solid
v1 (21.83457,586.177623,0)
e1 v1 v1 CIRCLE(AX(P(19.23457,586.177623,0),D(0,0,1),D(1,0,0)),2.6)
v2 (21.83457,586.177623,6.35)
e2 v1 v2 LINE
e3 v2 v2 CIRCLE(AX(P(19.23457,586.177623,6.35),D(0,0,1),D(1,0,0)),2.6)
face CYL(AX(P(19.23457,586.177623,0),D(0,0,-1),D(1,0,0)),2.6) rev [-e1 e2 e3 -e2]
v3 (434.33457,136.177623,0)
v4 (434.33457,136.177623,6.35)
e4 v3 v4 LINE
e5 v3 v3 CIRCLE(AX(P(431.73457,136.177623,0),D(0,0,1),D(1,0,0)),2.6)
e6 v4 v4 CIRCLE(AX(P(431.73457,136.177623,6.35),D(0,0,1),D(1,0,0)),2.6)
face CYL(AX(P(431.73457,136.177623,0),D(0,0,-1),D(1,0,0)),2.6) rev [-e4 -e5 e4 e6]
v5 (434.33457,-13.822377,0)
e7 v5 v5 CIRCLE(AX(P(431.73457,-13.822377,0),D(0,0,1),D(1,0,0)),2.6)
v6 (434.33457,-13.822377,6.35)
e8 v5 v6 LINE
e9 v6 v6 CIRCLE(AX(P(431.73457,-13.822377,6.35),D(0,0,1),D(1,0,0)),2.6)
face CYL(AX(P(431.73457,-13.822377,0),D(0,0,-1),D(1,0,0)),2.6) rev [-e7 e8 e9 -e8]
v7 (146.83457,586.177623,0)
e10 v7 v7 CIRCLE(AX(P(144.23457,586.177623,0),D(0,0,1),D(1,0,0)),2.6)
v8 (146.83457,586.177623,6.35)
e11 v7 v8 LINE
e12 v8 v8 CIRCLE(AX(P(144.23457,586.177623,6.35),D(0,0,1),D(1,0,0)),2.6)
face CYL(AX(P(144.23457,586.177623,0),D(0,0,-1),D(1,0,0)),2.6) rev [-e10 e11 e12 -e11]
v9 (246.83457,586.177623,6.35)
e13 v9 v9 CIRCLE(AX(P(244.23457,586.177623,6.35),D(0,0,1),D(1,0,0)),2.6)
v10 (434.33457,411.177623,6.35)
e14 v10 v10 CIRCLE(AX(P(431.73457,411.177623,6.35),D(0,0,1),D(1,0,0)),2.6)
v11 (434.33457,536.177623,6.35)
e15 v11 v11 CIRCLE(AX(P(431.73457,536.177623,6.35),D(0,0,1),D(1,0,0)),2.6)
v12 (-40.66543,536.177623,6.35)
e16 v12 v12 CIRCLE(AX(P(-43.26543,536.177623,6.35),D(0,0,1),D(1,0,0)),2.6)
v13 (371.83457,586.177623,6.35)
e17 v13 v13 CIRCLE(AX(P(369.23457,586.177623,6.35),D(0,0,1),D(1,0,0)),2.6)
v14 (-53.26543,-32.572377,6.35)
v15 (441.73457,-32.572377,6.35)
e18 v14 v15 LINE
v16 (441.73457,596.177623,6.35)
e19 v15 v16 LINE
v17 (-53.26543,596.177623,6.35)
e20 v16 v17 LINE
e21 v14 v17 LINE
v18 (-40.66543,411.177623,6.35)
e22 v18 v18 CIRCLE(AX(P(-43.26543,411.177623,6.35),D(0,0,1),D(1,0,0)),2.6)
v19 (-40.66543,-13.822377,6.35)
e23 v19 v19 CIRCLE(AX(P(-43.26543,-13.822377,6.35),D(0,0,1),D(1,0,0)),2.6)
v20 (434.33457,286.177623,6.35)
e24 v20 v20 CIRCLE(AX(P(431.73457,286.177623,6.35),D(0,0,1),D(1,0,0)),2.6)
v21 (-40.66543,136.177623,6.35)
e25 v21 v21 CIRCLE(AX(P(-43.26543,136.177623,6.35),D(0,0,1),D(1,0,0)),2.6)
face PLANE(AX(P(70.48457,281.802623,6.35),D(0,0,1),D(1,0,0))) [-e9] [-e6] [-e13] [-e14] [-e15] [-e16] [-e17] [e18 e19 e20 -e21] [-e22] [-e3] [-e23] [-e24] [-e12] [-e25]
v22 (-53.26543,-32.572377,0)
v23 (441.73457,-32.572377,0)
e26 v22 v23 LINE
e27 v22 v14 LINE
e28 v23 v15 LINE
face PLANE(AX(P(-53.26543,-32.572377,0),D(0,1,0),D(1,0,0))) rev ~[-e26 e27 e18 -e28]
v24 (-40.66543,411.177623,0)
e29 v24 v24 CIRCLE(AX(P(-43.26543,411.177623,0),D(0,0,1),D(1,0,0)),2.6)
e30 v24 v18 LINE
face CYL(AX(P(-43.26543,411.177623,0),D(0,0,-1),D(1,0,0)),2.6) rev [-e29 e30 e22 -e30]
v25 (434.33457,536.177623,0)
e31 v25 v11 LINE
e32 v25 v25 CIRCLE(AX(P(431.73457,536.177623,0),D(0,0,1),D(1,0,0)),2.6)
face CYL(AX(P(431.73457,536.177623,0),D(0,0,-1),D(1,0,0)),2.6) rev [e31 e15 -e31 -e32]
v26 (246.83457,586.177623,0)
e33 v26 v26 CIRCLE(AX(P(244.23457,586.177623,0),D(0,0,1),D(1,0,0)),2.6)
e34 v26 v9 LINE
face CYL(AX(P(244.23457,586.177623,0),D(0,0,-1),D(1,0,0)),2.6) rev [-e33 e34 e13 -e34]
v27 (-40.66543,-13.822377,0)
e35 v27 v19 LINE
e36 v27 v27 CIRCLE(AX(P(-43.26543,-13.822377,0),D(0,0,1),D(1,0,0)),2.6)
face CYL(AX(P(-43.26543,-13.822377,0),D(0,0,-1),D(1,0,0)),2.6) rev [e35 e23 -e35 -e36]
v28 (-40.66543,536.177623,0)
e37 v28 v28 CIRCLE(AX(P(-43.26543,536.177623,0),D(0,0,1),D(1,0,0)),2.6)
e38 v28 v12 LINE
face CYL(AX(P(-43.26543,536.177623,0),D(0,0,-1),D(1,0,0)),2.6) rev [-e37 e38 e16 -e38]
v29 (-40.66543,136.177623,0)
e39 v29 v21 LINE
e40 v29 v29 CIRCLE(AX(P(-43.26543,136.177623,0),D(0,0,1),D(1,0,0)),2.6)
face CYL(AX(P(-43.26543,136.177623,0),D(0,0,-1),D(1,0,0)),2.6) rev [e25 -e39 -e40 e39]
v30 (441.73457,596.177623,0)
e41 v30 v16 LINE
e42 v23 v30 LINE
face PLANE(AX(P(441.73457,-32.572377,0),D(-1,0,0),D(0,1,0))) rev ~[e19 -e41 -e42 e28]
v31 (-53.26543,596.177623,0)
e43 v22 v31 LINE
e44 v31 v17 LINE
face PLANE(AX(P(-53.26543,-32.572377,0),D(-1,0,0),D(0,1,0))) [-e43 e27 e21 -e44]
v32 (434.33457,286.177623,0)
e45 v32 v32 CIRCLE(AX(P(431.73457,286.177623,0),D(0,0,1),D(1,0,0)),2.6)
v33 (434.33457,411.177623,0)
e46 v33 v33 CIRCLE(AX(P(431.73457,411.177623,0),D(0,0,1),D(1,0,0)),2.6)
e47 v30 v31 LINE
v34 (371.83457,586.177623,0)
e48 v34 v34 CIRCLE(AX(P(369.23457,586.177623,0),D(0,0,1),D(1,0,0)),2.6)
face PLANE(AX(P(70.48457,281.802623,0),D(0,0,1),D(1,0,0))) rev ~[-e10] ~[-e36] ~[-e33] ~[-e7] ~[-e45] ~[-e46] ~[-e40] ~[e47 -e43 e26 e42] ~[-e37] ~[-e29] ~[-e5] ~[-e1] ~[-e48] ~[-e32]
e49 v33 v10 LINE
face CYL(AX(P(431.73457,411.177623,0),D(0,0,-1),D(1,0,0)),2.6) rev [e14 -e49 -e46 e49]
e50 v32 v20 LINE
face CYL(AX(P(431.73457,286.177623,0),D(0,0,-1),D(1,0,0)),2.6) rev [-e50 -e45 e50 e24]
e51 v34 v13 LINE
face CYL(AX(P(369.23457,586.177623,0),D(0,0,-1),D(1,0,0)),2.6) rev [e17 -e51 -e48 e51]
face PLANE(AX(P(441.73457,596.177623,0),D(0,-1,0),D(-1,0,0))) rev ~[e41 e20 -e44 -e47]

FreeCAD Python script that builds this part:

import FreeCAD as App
import Part
import Sketcher
from FreeCAD import Vector
Q = App.Units.Quantity


def add_polygon(sketch, points):
    """Adds a closed chain of lines whose ends are joined by coincident constraints."""
    first, n = sketch.GeometryCount, len(points)
    for a, b in zip(points, points[1:] + points[:1]):
        sketch.addGeometry(Part.LineSegment(App.Vector(*a, 0), App.Vector(*b, 0)), False)
    for i in range(n):
        sketch.addConstraint(Sketcher.Constraint("Coincident", first + i, 2, first + (i + 1) % n, 1))

doc = App.newDocument("Part")
body = doc.addObject("PartDesign::Body", "Body")

# Sketch on XY plane
sketch1 = body.newObject("Sketcher::SketchObject", "Sketch")
sketch1.AttachmentSupport = (doc.getObject("XY_Plane"), [""])
sketch1.MapMode = "FlatFace"
add_polygon(sketch1, [(-53.3, 596.2), (-53.3, -32.6), (441.7, -32.6), (441.7, 596.2)])  # lines 0-3
sketch1.addGeometry(Part.Circle(Vector(-43.3, -13.8, 0), Vector(0, 0, 1), 2.6), False)  # 4
sketch1.addGeometry(Part.Circle(Vector(-43.3, 136.2, 0), Vector(0, 0, 1), 2.6), False)  # 5
sketch1.addGeometry(Part.Circle(Vector(431.7, -13.8, 0), Vector(0, 0, 1), 2.6), False)  # 6
sketch1.addGeometry(Part.Circle(Vector(431.7, 136.2, 0), Vector(0, 0, 1), 2.6), False)  # 7
sketch1.addGeometry(Part.Circle(Vector(-43.3, 411.2, 0), Vector(0, 0, 1), 2.6), False)  # 8
sketch1.addGeometry(Part.Circle(Vector(-43.3, 536.2, 0), Vector(0, 0, 1), 2.6), False)  # 9
sketch1.addGeometry(Part.Circle(Vector(19.2, 586.2, 0), Vector(0, 0, 1), 2.6), False)  # 10
sketch1.addGeometry(Part.Circle(Vector(144.2, 586.2, 0), Vector(0, 0, 1), 2.6), False)  # 11
sketch1.addGeometry(Part.Circle(Vector(431.7, 286.2, 0), Vector(0, 0, 1), 2.6), False)  # 12
sketch1.addGeometry(Part.Circle(Vector(431.7, 411.2, 0), Vector(0, 0, 1), 2.6), False)  # 13
sketch1.addGeometry(Part.Circle(Vector(244.2, 586.2, 0), Vector(0, 0, 1), 2.6), False)  # 14
sketch1.addGeometry(Part.Circle(Vector(369.2, 586.2, 0), Vector(0, 0, 1), 2.6), False)  # 15
sketch1.addGeometry(Part.Circle(Vector(431.7, 536.2, 0), Vector(0, 0, 1), 2.6), False)  # 16
sketch1.addConstraint(Sketcher.Constraint("Vertical", 0))
sketch1.addConstraint(Sketcher.Constraint("Horizontal", 1))
sketch1.addConstraint(Sketcher.Constraint("Vertical", 2))
sketch1.addConstraint(Sketcher.Constraint("Horizontal", 3))
sketch1.addConstraint(Sketcher.Constraint("Equal", 4, 5))
sketch1.addConstraint(Sketcher.Constraint("Equal", 5, 6))
sketch1.addConstraint(Sketcher.Constraint("Equal", 6, 7))
sketch1.addConstraint(Sketcher.Constraint("Equal", 7, 8))
sketch1.addConstraint(Sketcher.Constraint("Equal", 8, 9))
sketch1.addConstraint(Sketcher.Constraint("Equal", 9, 10))
sketch1.addConstraint(Sketcher.Constraint("Equal", 10, 11))
sketch1.addConstraint(Sketcher.Constraint("Equal", 11, 12))
sketch1.addConstraint(Sketcher.Constraint("Equal", 12, 13))
sketch1.addConstraint(Sketcher.Constraint("Equal", 13, 14))
sketch1.addConstraint(Sketcher.Constraint("Equal", 14, 15))
sketch1.addConstraint(Sketcher.Constraint("Equal", 15, 16))
sketch1.addConstraint(Sketcher.Constraint("Horizontal", 4, 3, 6, 3))
sketch1.addConstraint(Sketcher.Constraint("Horizontal", 5, 3, 7, 3))
sketch1.addConstraint(Sketcher.Constraint("Horizontal", 10, 3, 11, 3))
sketch1.addConstraint(Sketcher.Constraint("Horizontal", 8, 3, 13, 3))
sketch1.addConstraint(Sketcher.Constraint("Horizontal", 11, 3, 14, 3))
sketch1.addConstraint(Sketcher.Constraint("Horizontal", 14, 3, 15, 3))
sketch1.addConstraint(Sketcher.Constraint("Horizontal", 9, 3, 16, 3))
sketch1.addConstraint(Sketcher.Constraint("Vertical", 4, 3, 5, 3))
sketch1.addConstraint(Sketcher.Constraint("Vertical", 6, 3, 7, 3))
sketch1.addConstraint(Sketcher.Constraint("Vertical", 5, 3, 8, 3))
sketch1.addConstraint(Sketcher.Constraint("Vertical", 8, 3, 9, 3))
sketch1.addConstraint(Sketcher.Constraint("Vertical", 7, 3, 12, 3))
sketch1.addConstraint(Sketcher.Constraint("Vertical", 12, 3, 13, 3))
sketch1.addConstraint(Sketcher.Constraint("Vertical", 13, 3, 16, 3))
sketch1.addConstraint(Sketcher.Constraint("Diameter", 4, Q("5.2 mm")))
sketch1.addConstraint(Sketcher.Constraint("DistanceX", 1, 1, 1, 2, Q("495 mm")))
sketch1.addConstraint(Sketcher.Constraint("DistanceY", 4, 3, 5, 3, Q("150 mm")))
sketch1.addConstraint(Sketcher.Constraint("DistanceX", 4, 3, 6, 3, Q("475 mm")))
sketch1.addConstraint(Sketcher.Constraint("DistanceY", 5, 3, 8, 3, Q("275 mm")))
sketch1.addConstraint(Sketcher.Constraint("DistanceY", 8, 3, 9, 3, Q("125 mm")))
sketch1.addConstraint(Sketcher.Constraint("DistanceY", 9, 3, 10, 3, Q("50 mm")))
sketch1.addConstraint(Sketcher.Constraint("DistanceX", 10, 3, 11, 3, Q("125 mm")))
sketch1.addConstraint(Sketcher.Constraint("DistanceY", 7, 3, 12, 3, Q("150 mm")))
sketch1.addConstraint(Sketcher.Constraint("DistanceX", 11, 3, 14, 3, Q("100 mm")))
sketch1.addConstraint(Sketcher.Constraint("DistanceX", 14, 3, 15, 3, Q("125 mm")))
sketch1.addConstraint(Sketcher.Constraint("DistanceX", 0, 2, 4, 3, Q("10 mm")))
sketch1.addConstraint(Sketcher.Constraint("DistanceY", 16, 3, 2, 2, Q("60 mm")))
sketch1.addConstraint(Sketcher.Constraint("DistanceY", 0, 2, 0, 1, Q("628.75 mm")))
sketch1.addConstraint(Sketcher.Constraint("DistanceX", 9, 3, 10, 3, Q("62.5 mm")))
sketch1.addConstraint(Sketcher.Constraint("DistanceX", 4, 3, -1, 1, Q("43.26543 mm")))
sketch1.addConstraint(Sketcher.Constraint("DistanceY", 4, 3, -1, 1, Q("13.822377 mm")))
pad1 = body.newObject("PartDesign::Pad", "Pad")
pad1.Profile = sketch1
pad1.Length = 6.35

doc.recompute()
